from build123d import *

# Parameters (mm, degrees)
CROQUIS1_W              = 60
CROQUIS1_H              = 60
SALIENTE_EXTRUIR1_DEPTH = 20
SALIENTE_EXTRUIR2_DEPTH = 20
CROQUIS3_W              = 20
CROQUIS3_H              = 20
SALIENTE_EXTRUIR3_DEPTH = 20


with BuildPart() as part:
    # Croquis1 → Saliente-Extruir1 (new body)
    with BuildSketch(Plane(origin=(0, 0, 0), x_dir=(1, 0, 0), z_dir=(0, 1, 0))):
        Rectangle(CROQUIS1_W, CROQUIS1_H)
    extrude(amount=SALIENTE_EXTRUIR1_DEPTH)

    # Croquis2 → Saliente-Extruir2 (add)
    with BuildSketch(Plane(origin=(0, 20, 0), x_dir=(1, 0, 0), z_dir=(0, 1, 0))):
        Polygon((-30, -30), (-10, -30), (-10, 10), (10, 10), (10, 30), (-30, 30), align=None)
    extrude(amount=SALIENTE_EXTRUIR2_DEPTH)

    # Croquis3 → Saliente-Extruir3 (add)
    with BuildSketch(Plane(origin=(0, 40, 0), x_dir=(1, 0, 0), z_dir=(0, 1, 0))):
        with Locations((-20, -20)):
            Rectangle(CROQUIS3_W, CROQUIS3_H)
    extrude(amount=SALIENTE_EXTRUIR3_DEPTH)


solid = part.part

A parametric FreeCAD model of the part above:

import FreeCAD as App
import Part
import Sketcher

V = App.Vector
Q = App.Units.Quantity


def add_polygon(sketch, points):
    """Adds a closed chain of lines whose ends are joined by coincident constraints."""
    first, n = sketch.GeometryCount, len(points)
    for a, b in zip(points, points[1:] + points[:1]):
        sketch.addGeometry(Part.LineSegment(App.Vector(*a, 0), App.Vector(*b, 0)), False)
    for i in range(n):
        sketch.addConstraint(Sketcher.Constraint("Coincident", first + i, 2, first + (i + 1) % n, 1))

doc = App.newDocument("Part")
body = doc.addObject("PartDesign::Body", "Body")

# Sketch on XZ plane
sketch1 = body.newObject("Sketcher::SketchObject", "Sketch")
sketch1.AttachmentSupport = (doc.getObject("XZ_Plane"), [""])
sketch1.MapMode = "FlatFace"
add_polygon(sketch1, [(-30, -30), (-30, 30), (30, 30), (30, -30)])  # lines 0-3
sketch1.addConstraint([
    Sketcher.Constraint("Vertical", 0),
    Sketcher.Constraint("Horizontal", 1),
    Sketcher.Constraint("Vertical", 2),
    Sketcher.Constraint("Horizontal", 3),
    Sketcher.Constraint("Symmetric", 0, 2, 2, 2, -1, 1),
    Sketcher.Constraint("Equal", 3, 0),
    Sketcher.Constraint("DistanceX", 1, 1, 1, 2, Q("60 mm")),
])
pad1 = body.newObject("PartDesign::Pad", "Pad")
pad1.Profile = sketch1
pad1.Length = 20
pad1.Reversed = True

# Sketch on XZ plane
sketch2 = body.newObject("Sketcher::SketchObject", "Sketch001")
sketch2.AttachmentSupport = (doc.getObject("XZ_Plane"), [""])
sketch2.MapMode = "FlatFace"
sketch2.AttachmentOffset = App.Placement(V(0, 0, -20), App.Rotation())
add_polygon(sketch2, [(-30, 30), (-10, 30), (-10, -10), (10, -10), (10, -30), (-30, -30)])  # lines 0-5
sketch2.addConstraint([
    Sketcher.Constraint("Horizontal", 0),
    Sketcher.Constraint("Vertical", 1),
    Sketcher.Constraint("Horizontal", 2),
    Sketcher.Constraint("Vertical", 3),
    Sketcher.Constraint("Horizontal", 4),
    Sketcher.Constraint("Vertical", 5),
    Sketcher.Constraint("Symmetric", 0, 2, 3, 2, -1, 1),
    Sketcher.Constraint("Equal", 0, 2),
    Sketcher.Constraint("Equal", 4, 1),
    Sketcher.Constraint("Equal", 2, 3),
    Sketcher.Constraint("DistanceX", 0, 1, 0, 2, Q("20 mm")),
])
pad2 = body.newObject("PartDesign::Pad", "Pad001")
pad2.Profile = sketch2
pad2.Length = 20
pad2.Reversed = True

# Sketch on XZ plane
sketch3 = body.newObject("Sketcher::SketchObject", "Sketch002")
sketch3.AttachmentSupport = (doc.getObject("XZ_Plane"), [""])
sketch3.MapMode = "FlatFace"
sketch3.AttachmentOffset = App.Placement(V(0, 0, -40), App.Rotation())
add_polygon(sketch3, [(-30, 10), (-30, 30), (-10, 30), (-10, 10)])  # lines 0-3
sketch3.addConstraint([
    Sketcher.Constraint("Vertical", 0),
    Sketcher.Constraint("Horizontal", 1),
    Sketcher.Constraint("Vertical", 2),
    Sketcher.Constraint("Horizontal", 3),
    Sketcher.Constraint("Equal", 3, 0),
    Sketcher.Constraint("DistanceX", 1, 1, 1, 2, Q("20 mm")),
    Sketcher.Constraint("DistanceX", 0, 2, -1, 1, Q("30 mm")),
    Sketcher.Constraint("DistanceY", -1, 1, 0, 2, Q("30 mm")),
])
pad3 = body.newObject("PartDesign::Pad", "Pad002")
pad3.Profile = sketch3
pad3.Length = 20
pad3.Reversed = True

doc.recompute()
